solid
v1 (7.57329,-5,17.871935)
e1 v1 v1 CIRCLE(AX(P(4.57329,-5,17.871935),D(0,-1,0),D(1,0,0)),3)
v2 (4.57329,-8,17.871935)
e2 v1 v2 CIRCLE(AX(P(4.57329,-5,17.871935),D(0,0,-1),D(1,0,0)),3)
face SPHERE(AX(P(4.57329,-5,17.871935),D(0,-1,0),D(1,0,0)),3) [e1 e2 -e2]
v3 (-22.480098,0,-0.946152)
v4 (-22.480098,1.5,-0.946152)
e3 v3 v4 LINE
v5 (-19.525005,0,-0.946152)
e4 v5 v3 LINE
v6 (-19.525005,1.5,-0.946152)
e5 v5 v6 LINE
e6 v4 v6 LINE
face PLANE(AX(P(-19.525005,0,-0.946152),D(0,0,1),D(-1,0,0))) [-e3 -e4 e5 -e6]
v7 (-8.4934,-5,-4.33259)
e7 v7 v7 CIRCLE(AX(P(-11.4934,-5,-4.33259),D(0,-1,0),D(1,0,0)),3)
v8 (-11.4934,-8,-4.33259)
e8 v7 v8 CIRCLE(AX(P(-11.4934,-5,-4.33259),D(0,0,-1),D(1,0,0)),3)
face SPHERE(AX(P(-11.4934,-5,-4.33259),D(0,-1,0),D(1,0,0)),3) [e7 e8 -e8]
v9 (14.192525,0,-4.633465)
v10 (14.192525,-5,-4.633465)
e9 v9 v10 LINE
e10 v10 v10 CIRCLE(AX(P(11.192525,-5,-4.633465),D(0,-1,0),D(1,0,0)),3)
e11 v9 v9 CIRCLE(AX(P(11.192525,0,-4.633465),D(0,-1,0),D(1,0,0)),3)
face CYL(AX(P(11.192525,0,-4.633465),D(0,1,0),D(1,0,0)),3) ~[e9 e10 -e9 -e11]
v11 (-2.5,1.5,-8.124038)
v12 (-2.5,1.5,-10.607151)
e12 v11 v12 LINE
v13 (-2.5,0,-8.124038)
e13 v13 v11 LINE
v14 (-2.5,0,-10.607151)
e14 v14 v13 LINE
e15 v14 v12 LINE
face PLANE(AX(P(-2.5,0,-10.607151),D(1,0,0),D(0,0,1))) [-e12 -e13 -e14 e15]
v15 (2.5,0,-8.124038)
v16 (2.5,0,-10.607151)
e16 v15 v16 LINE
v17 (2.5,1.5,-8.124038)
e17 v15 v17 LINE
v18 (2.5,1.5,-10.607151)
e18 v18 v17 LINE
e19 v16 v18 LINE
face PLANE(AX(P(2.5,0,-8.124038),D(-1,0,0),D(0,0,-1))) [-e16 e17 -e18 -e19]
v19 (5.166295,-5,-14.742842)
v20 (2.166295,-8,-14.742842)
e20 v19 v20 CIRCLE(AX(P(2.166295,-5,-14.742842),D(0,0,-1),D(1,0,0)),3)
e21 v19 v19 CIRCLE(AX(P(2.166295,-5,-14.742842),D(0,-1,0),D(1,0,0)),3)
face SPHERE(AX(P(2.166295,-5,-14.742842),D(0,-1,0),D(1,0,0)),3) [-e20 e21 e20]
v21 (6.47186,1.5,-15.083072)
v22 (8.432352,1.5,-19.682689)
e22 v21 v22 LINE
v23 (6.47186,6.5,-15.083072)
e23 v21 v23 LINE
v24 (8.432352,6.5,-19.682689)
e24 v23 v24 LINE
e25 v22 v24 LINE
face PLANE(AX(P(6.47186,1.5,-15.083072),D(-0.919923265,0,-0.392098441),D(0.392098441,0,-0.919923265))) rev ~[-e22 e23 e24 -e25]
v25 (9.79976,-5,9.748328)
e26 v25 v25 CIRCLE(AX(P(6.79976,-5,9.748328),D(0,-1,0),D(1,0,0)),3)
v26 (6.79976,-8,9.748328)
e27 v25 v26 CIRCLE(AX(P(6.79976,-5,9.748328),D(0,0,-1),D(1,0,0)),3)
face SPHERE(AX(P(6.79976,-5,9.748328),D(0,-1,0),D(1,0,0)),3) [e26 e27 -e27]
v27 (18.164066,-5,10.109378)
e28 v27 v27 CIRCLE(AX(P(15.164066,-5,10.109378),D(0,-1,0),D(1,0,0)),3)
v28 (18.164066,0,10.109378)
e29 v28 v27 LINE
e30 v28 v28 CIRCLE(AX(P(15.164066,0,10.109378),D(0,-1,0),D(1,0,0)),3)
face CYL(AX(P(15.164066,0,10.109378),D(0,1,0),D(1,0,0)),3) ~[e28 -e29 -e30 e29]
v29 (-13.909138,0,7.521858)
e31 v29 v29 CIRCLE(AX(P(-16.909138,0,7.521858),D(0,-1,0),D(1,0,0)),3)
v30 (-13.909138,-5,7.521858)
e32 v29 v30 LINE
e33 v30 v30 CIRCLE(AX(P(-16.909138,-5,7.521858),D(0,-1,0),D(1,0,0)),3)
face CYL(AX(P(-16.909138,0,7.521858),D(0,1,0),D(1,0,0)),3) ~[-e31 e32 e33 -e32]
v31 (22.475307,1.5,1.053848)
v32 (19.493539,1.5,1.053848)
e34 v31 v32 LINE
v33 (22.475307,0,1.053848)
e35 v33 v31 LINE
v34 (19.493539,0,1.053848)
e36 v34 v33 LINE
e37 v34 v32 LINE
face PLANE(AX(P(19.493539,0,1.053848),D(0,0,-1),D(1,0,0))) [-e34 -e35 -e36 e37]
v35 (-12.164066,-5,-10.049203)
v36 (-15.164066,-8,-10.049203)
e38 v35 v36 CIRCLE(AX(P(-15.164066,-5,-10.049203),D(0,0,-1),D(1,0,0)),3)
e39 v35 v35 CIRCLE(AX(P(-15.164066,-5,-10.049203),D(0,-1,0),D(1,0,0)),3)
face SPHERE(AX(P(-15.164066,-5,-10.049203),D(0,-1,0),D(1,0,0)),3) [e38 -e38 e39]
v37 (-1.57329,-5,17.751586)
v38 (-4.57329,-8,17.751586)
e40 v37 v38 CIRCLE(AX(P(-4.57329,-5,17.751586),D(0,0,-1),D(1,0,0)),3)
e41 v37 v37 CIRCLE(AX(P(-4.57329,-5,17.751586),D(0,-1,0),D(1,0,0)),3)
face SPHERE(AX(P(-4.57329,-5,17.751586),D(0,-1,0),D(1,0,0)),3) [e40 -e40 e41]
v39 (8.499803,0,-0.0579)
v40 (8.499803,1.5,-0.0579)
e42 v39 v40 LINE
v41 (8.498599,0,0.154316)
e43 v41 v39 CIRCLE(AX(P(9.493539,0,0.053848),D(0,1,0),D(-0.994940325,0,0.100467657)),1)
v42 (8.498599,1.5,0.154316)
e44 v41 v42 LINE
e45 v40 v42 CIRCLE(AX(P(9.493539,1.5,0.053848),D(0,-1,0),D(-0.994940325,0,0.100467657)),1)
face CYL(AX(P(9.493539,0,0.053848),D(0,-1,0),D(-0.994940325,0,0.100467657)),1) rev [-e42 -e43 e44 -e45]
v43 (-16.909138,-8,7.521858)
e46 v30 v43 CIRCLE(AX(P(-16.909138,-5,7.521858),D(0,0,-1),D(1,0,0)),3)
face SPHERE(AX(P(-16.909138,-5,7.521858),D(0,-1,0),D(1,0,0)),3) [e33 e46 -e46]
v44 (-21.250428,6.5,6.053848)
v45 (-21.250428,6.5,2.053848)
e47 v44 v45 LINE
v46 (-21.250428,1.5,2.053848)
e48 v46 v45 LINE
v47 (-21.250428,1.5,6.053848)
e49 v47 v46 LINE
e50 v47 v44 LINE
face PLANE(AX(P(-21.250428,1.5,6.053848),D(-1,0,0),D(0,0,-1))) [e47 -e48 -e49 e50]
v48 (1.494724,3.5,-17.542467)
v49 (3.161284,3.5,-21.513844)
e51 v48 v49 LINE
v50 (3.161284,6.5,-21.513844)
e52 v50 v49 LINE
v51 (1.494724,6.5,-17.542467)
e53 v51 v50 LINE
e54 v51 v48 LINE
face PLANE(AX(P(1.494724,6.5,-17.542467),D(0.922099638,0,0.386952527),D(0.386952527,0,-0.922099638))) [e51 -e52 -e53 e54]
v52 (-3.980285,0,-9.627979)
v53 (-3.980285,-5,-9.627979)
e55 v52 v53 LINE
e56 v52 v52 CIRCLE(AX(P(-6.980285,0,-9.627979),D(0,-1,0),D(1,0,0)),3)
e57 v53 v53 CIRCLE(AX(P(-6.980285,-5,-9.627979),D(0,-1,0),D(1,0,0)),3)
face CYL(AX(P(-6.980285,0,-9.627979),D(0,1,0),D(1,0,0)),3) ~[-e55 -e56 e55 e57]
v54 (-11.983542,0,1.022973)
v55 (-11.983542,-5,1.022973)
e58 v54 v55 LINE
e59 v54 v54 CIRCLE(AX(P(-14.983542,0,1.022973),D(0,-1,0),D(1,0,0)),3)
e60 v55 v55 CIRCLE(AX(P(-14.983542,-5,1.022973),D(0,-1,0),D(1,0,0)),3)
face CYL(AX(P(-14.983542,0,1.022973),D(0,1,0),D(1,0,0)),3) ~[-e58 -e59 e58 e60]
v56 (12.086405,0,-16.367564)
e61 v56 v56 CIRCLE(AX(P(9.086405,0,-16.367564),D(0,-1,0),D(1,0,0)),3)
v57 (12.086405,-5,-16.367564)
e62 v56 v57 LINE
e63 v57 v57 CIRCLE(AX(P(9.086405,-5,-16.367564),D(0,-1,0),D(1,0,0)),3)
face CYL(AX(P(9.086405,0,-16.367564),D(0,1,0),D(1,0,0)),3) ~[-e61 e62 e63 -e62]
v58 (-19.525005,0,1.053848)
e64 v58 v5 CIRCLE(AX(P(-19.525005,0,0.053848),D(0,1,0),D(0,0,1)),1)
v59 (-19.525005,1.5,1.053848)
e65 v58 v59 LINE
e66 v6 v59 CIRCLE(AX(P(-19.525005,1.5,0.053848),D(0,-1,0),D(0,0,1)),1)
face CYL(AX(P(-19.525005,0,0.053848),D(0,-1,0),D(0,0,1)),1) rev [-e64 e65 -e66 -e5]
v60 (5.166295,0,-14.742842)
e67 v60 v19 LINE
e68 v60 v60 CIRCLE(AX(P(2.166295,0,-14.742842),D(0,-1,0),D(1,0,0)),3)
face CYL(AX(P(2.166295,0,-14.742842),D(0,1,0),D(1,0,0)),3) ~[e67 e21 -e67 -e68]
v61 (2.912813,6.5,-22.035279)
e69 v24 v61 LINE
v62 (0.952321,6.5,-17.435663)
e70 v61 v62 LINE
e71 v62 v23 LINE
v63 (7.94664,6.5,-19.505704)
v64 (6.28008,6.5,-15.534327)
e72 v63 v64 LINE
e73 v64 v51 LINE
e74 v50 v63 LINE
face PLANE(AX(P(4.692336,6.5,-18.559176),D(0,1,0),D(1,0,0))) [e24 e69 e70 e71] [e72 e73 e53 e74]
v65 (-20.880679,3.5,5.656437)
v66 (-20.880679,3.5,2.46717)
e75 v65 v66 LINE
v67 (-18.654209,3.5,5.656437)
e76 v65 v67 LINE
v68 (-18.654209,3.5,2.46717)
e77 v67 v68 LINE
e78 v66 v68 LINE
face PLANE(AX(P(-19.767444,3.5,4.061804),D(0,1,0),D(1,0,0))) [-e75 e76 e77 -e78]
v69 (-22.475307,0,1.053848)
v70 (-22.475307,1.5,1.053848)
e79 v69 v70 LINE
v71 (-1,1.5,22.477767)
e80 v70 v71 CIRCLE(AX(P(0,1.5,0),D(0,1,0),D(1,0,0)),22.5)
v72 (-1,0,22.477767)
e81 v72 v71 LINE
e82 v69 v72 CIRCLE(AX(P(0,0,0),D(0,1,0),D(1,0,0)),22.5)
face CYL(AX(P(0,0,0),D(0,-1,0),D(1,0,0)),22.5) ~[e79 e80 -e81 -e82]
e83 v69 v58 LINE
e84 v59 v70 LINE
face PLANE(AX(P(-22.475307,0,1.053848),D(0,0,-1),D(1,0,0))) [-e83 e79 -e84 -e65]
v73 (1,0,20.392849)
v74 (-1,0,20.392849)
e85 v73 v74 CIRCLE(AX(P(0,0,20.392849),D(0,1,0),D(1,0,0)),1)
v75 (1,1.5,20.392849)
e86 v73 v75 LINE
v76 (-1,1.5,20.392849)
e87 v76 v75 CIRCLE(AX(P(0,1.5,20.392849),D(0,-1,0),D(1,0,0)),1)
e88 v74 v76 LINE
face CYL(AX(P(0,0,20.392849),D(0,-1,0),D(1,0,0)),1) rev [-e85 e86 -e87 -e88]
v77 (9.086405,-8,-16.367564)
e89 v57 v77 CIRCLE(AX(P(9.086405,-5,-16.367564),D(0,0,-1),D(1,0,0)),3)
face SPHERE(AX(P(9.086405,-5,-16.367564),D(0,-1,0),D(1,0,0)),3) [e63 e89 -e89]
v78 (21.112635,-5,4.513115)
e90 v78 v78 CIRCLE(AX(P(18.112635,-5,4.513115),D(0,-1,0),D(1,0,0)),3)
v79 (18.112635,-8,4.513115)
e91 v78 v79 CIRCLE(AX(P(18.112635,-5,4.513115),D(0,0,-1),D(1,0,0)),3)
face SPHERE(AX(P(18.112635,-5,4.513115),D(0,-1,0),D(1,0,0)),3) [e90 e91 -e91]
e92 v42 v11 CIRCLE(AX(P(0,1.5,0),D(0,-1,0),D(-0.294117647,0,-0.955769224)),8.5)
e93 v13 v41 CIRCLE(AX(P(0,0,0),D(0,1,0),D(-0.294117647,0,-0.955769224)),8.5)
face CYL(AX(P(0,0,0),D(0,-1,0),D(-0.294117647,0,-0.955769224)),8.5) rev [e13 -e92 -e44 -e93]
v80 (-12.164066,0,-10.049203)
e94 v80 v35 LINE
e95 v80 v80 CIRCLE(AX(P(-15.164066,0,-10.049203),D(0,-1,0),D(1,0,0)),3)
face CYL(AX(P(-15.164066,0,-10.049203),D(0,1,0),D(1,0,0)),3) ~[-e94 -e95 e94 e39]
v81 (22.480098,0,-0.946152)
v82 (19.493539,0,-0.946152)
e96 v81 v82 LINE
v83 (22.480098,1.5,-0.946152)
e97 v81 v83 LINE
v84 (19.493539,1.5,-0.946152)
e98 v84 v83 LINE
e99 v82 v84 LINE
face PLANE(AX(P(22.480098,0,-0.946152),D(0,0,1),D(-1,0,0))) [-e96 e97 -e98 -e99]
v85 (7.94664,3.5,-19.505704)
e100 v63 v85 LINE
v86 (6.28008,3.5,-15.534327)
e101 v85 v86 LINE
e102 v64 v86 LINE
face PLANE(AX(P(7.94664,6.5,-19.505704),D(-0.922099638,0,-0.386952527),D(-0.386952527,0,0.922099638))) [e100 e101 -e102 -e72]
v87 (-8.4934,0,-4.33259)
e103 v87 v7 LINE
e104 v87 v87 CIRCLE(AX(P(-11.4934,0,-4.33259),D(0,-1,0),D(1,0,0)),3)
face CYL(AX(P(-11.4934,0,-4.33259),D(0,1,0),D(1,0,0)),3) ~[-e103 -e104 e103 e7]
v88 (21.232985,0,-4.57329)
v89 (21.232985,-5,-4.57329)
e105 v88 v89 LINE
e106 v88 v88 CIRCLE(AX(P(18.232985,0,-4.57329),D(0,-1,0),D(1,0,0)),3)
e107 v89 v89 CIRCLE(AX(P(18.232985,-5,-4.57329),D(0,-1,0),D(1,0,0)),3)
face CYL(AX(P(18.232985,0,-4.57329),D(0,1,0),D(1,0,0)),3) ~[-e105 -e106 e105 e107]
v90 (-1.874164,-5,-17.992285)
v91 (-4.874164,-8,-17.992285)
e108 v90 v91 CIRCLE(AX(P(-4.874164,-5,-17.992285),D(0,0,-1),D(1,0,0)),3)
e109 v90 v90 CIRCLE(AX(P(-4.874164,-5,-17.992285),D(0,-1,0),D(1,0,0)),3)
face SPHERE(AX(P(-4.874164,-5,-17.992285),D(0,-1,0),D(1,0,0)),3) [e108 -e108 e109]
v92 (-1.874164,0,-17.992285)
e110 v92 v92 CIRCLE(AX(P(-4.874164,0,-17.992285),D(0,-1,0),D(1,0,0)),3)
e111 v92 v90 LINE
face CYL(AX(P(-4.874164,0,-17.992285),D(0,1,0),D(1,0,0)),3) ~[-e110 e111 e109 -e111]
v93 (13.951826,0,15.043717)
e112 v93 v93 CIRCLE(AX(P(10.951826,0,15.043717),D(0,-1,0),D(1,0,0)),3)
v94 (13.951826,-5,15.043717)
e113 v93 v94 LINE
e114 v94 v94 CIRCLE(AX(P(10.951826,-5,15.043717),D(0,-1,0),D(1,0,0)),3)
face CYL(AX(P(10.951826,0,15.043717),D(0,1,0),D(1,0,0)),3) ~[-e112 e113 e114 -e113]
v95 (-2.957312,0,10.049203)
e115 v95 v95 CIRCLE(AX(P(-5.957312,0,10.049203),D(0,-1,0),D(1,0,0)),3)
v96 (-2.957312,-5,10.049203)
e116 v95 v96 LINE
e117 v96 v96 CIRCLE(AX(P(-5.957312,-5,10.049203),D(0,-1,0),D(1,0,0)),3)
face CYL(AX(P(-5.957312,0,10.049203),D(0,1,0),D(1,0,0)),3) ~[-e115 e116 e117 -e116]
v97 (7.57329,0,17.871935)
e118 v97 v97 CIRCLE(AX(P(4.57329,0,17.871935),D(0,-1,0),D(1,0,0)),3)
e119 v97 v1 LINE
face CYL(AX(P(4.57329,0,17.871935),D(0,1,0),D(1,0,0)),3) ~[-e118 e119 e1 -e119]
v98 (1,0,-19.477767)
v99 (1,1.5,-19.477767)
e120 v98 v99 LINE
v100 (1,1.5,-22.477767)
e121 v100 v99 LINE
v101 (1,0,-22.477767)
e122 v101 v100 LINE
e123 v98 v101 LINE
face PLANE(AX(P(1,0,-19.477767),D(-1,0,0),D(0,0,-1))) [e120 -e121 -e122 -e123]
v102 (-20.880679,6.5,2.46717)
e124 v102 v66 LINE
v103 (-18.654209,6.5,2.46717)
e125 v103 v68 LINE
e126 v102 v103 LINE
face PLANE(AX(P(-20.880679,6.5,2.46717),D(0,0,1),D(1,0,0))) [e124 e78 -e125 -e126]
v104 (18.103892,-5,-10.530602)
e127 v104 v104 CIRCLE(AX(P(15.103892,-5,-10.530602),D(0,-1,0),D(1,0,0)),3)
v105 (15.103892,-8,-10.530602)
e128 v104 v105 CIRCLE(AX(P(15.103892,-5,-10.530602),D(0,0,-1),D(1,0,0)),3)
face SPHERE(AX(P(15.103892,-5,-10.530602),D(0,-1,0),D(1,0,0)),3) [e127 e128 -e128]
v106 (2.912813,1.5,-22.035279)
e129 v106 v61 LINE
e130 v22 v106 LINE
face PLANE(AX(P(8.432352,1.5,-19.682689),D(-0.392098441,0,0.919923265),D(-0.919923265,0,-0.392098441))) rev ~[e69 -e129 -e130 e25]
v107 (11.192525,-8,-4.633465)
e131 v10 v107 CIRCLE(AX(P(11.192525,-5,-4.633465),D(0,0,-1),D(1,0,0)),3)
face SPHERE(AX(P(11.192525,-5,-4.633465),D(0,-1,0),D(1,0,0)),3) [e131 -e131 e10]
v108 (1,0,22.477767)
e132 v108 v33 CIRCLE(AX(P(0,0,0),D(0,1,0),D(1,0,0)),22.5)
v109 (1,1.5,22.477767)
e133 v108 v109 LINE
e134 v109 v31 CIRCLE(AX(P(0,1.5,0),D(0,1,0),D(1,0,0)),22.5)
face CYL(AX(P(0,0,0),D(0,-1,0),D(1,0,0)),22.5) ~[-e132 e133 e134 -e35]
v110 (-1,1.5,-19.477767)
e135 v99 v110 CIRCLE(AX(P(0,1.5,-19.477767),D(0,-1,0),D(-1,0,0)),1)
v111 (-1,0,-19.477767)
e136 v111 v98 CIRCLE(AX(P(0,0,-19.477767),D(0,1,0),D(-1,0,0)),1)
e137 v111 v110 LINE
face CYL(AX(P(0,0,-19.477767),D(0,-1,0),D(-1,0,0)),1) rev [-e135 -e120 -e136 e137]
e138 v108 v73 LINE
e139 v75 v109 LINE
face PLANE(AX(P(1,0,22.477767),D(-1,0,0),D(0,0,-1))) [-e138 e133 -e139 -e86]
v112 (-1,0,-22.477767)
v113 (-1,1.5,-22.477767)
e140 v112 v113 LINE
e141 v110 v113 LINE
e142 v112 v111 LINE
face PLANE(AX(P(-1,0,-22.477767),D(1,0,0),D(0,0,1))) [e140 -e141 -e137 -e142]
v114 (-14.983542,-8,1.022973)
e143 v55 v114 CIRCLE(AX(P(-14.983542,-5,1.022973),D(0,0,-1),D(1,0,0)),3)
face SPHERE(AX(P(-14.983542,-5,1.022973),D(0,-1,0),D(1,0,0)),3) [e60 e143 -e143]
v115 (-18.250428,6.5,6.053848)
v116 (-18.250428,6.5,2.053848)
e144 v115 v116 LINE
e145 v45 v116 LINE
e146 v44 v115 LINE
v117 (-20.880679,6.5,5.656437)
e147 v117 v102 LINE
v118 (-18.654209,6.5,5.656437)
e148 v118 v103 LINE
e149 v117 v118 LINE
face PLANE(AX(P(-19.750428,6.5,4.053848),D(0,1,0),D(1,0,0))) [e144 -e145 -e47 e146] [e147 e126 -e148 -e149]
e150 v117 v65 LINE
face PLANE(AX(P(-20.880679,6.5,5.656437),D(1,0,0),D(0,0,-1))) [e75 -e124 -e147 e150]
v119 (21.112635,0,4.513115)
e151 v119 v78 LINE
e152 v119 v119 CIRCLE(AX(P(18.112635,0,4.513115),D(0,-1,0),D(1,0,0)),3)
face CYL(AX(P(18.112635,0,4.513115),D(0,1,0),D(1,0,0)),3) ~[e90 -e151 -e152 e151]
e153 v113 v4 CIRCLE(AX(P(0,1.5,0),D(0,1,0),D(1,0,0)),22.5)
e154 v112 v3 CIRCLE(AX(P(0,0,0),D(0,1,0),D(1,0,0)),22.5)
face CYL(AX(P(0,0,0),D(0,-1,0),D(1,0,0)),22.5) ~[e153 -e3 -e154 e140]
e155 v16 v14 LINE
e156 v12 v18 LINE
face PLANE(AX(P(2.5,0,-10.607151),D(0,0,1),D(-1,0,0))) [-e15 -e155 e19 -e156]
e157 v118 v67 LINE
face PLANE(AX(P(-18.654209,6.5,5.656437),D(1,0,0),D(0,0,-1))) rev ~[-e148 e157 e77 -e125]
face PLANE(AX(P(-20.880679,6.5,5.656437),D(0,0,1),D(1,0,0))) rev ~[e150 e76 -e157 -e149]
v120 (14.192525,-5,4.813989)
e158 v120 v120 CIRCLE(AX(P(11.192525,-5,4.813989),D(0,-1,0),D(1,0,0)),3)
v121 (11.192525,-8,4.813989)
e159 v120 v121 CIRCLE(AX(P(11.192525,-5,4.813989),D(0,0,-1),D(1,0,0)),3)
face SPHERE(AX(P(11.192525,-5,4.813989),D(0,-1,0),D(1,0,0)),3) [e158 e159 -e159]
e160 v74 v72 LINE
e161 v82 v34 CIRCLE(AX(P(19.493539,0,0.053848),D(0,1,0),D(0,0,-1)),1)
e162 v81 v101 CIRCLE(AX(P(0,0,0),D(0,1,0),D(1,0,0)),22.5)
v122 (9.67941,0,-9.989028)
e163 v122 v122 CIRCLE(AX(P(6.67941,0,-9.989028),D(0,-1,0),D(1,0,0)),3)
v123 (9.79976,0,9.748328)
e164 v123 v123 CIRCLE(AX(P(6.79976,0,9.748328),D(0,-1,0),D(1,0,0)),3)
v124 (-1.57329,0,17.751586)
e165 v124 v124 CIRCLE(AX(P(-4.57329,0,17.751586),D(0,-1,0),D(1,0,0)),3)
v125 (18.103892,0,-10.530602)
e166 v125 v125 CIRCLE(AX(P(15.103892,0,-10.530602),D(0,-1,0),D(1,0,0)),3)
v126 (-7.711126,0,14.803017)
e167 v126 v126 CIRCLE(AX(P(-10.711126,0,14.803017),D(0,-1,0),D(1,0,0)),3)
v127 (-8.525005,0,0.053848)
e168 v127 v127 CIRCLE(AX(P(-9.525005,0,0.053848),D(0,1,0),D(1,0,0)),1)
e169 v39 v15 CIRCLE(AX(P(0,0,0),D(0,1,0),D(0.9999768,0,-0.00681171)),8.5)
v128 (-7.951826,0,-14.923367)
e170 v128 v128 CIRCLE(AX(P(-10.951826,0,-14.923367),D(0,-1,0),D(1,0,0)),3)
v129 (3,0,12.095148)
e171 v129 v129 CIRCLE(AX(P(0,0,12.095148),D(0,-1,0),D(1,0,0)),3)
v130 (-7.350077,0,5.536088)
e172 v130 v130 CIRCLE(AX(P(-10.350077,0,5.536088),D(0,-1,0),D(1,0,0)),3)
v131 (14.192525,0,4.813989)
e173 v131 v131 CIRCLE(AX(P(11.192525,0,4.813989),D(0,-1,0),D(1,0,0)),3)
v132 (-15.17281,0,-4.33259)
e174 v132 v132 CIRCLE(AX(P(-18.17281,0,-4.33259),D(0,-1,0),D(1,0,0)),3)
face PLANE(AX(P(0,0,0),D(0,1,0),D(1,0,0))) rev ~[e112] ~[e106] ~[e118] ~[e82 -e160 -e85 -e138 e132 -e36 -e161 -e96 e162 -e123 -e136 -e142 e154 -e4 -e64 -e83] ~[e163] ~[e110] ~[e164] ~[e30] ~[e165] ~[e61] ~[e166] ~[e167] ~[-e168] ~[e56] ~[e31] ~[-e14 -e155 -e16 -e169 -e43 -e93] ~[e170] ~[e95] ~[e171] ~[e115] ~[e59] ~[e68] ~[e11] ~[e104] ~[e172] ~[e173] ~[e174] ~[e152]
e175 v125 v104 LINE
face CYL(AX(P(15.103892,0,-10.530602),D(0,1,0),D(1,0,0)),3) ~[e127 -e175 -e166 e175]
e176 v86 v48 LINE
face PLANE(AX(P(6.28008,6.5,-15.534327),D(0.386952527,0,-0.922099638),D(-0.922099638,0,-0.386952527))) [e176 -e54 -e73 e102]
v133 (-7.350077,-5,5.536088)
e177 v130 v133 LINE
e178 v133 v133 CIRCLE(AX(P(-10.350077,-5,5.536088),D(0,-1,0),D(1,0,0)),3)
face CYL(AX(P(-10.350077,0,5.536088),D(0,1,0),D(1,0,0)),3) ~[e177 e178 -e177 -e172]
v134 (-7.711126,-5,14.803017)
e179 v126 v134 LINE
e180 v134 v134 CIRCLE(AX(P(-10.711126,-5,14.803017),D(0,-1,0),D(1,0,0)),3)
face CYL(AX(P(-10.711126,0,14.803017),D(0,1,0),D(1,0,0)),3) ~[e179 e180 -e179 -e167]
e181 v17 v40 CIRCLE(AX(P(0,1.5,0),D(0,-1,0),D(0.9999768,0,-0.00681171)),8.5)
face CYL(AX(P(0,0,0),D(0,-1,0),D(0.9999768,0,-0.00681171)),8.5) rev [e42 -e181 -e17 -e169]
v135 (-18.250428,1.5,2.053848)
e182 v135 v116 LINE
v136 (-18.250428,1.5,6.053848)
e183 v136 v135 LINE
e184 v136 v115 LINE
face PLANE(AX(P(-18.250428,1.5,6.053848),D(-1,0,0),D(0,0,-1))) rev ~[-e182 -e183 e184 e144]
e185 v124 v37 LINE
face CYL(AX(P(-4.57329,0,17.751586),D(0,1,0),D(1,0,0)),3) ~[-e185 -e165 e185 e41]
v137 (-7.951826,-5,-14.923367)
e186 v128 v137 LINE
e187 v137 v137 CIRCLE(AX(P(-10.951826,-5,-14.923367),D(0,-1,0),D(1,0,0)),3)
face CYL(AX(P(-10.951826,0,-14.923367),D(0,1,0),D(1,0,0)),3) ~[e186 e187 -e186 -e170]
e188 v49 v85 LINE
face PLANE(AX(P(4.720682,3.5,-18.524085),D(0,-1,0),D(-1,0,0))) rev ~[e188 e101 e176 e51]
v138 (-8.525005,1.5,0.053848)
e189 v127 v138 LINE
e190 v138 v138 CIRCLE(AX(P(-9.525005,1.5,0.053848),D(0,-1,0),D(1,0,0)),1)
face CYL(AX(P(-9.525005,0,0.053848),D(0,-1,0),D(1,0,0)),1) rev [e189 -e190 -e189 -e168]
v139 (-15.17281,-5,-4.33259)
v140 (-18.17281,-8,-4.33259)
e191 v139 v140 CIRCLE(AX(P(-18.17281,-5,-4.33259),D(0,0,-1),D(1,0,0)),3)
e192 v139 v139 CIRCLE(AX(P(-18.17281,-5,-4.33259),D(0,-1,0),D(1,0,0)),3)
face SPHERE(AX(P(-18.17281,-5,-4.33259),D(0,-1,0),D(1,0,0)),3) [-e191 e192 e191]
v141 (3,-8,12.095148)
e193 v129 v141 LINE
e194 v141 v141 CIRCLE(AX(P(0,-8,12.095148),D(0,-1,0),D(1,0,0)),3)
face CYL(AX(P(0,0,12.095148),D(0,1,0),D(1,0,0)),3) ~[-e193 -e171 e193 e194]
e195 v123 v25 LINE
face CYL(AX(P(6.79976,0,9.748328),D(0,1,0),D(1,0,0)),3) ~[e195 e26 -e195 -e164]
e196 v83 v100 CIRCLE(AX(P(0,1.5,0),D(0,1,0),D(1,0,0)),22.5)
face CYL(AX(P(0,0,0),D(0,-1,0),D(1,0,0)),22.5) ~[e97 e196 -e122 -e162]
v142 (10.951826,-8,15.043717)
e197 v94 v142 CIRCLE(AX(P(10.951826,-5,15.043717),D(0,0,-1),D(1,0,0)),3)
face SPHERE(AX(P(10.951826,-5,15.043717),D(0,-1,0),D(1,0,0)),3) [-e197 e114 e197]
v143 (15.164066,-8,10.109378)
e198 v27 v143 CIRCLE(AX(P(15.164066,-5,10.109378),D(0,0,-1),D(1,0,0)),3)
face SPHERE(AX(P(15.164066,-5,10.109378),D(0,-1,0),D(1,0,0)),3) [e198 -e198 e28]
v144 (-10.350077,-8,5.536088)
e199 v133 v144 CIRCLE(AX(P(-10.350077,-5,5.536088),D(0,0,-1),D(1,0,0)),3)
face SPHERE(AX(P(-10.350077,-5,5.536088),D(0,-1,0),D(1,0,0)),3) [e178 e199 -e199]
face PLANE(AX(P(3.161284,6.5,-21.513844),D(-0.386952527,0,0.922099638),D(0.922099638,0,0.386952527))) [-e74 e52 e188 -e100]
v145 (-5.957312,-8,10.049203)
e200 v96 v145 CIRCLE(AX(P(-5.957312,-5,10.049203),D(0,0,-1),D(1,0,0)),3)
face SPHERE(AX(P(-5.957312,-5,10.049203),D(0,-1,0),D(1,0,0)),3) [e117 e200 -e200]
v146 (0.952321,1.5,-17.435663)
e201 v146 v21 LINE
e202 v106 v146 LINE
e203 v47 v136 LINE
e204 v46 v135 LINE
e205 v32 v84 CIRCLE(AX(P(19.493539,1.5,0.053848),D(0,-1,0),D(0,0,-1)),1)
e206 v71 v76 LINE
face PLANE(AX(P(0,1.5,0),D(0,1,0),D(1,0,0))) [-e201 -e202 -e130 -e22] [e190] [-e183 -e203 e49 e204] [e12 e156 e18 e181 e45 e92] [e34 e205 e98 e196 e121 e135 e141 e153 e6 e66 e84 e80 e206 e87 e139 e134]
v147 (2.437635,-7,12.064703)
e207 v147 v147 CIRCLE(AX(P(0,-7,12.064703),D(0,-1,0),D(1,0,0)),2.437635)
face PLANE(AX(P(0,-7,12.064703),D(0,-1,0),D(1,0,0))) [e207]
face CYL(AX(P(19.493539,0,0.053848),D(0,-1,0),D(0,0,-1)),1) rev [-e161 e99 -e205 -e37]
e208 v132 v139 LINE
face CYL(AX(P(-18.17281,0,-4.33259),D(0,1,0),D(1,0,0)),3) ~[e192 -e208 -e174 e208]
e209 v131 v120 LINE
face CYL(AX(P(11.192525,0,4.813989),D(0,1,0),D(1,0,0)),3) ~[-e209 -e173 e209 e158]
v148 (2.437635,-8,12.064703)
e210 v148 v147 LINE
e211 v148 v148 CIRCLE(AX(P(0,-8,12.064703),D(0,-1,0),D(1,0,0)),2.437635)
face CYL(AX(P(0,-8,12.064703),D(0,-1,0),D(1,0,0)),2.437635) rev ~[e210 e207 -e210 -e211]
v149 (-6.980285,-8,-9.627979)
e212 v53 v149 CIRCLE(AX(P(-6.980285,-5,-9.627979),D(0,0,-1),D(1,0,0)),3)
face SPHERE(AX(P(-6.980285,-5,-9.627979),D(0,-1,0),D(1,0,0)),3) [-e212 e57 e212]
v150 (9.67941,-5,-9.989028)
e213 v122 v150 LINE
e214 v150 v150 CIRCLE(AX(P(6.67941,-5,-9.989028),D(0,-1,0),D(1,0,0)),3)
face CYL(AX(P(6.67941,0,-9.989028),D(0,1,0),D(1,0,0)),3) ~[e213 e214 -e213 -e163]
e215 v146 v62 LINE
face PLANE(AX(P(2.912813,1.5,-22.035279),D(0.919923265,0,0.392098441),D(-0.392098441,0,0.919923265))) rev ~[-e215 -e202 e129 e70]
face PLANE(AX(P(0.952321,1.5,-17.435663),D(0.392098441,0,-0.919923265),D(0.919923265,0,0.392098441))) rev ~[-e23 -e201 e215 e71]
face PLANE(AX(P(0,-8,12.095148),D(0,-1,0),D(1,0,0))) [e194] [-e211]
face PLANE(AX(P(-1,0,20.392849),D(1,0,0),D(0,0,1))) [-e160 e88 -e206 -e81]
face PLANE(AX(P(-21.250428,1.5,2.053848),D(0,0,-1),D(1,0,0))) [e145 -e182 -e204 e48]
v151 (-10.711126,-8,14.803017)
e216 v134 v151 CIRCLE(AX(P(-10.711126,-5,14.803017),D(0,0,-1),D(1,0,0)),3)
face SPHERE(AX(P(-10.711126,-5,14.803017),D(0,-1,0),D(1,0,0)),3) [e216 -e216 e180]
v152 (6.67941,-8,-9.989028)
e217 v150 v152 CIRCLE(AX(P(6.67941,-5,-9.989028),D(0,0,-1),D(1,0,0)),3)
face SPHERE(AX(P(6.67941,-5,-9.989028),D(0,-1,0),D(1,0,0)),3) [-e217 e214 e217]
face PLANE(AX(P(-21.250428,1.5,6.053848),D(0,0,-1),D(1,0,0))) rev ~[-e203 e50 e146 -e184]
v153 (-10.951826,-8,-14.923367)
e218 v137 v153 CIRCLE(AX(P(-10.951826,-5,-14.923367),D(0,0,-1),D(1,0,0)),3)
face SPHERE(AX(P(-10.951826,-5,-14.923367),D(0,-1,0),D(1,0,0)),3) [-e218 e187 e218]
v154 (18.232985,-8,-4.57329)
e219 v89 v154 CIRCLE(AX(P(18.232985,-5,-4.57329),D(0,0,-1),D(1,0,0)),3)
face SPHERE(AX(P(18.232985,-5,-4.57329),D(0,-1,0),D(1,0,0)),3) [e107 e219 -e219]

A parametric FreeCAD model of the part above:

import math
import FreeCAD as App
import Part
import Sketcher


def edges_at(feature, points):
    """Names of the edges that pass closest to the given points."""
    edges = feature.Shape.Edges
    near = lambda p: min(range(len(edges)), key=lambda i: edges[i].distToShape(Part.Vertex(*p))[0])
    return sorted({f"Edge{near(p) + 1}" for p in points})


def add_polygon(sketch, points):
    """Adds a closed chain of lines whose ends are joined by coincident constraints."""
    first, n = sketch.GeometryCount, len(points)
    for a, b in zip(points, points[1:] + points[:1]):
        sketch.addGeometry(Part.LineSegment(App.Vector(*a, 0), App.Vector(*b, 0)), False)
    for i in range(n):
        sketch.addConstraint(Sketcher.Constraint("Coincident", first + i, 2, first + (i + 1) % n, 1))

doc = App.newDocument("Part")
body = doc.addObject("PartDesign::Body", "Body")

# Sketch on XZ plane
sketch1 = body.newObject("Sketcher::SketchObject", "Sketch")
sketch1.AttachmentSupport = (doc.getObject("XZ_Plane"), [""])
sketch1.MapMode = "FlatFace"
sketch1.addGeometry(Part.Circle(App.Vector(0, 0, 0), App.Vector(0, 0, 1), 22), False)
sketch1.addConstraint(Sketcher.Constraint("Coincident", 0, 3, -1, 1))
sketch1.addConstraint(Sketcher.Constraint("Diameter", 0, 45.0))
pad1 = body.newObject("PartDesign::Pad", "Pad")
pad1.Profile = sketch1
pad1.Length = 1.5
pad1.Reversed = True

# Sketch on XZ plane
sketch2 = body.newObject("Sketcher::SketchObject", "Sketch001")
sketch2.AttachmentSupport = (doc.getObject("XZ_Plane"), [""])
sketch2.MapMode = "FlatFace"
sketch2.addGeometry(Part.LineSegment(App.Vector(-22.48, 1.05, 0), App.Vector(-19.53, 1.05, 0)), False)
sketch2.addGeometry(Part.ArcOfCircle(Part.Circle(App.Vector(-19.53, 0.05, 0), App.Vector(0, 0, 1), 1), math.radians(-90), math.radians(90)), False)
sketch2.addGeometry(Part.LineSegment(App.Vector(-19.53, -0.95, 0), App.Vector(-22.48, -0.95, 0)), False)
sketch2.addGeometry(Part.ArcOfCircle(Part.Circle(App.Vector(0, 0, 0), App.Vector(0, 0, 1), 22.5), math.radians(177.32), math.radians(182.41)), False)
sketch2.addGeometry(Part.LineSegment(App.Vector(-1, 20.39, 0), App.Vector(-1, 22.48, 0)), False)
sketch2.addGeometry(Part.ArcOfCircle(Part.Circle(App.Vector(0, 0, 0), App.Vector(0, 0, 1), 22.5), math.radians(87.45), math.radians(92.55)), False)
sketch2.addGeometry(Part.LineSegment(App.Vector(1, 22.48, 0), App.Vector(1, 20.39, 0)), False)
sketch2.addGeometry(Part.ArcOfCircle(Part.Circle(App.Vector(0, 20.39, 0), App.Vector(0, 0, 1), 1), math.radians(180), math.radians(360)), False)
sketch2.addGeometry(Part.ArcOfCircle(Part.Circle(App.Vector(0, 0, 0), App.Vector(0, 0, 1), 22.5), math.radians(-92.55), math.radians(-87.45)), False)
sketch2.addGeometry(Part.LineSegment(App.Vector(-1, -22.48, 0), App.Vector(-1, -19.48, 0)), False)
sketch2.addGeometry(Part.ArcOfCircle(Part.Circle(App.Vector(0, -19.48, 0), App.Vector(0, 0, 1), 1), math.radians(0), math.radians(180)), False)
sketch2.addGeometry(Part.LineSegment(App.Vector(1, -19.48, 0), App.Vector(1, -22.48, 0)), False)
sketch2.addGeometry(Part.LineSegment(App.Vector(19.49, 1.05, 0), App.Vector(22.48, 1.05, 0)), False)
sketch2.addGeometry(Part.ArcOfCircle(Part.Circle(App.Vector(0, 0, 0), App.Vector(0, 0, 1), 22.5), math.radians(-2.41), math.radians(2.68)), False)
sketch2.addGeometry(Part.LineSegment(App.Vector(22.48, -0.95, 0), App.Vector(19.49, -0.95, 0)), False)
sketch2.addGeometry(Part.ArcOfCircle(Part.Circle(App.Vector(19.49, 0.05, 0), App.Vector(0, 0, 1), 1), math.radians(90), math.radians(270)), False)
sketch2.addGeometry(Part.LineSegment(App.Vector(2.5, -10.61, 0), App.Vector(-2.5, -10.61, 0)), False)
sketch2.addGeometry(Part.LineSegment(App.Vector(-2.5, -10.61, 0), App.Vector(-2.5, -8.12, 0)), False)
sketch2.addGeometry(Part.ArcOfCircle(Part.Circle(App.Vector(0, 0, 0), App.Vector(0, 0, 1), 8.5), math.radians(1), math.radians(253)), False)
sketch2.addGeometry(Part.ArcOfCircle(Part.Circle(App.Vector(9.49, 0.05, 0), App.Vector(0, 0, 1), 1), math.radians(-174), math.radians(174)), False)
sketch2.addGeometry(Part.ArcOfCircle(Part.Circle(App.Vector(0, 0, 0), App.Vector(0, 0, 1), 8.5), math.radians(-73), math.radians(0)), False)
sketch2.addGeometry(Part.LineSegment(App.Vector(2.5, -8.12, 0), App.Vector(2.5, -10.61, 0)), False)
sketch2.addGeometry(Part.Circle(App.Vector(-9.53, 0.05, 0), App.Vector(0, 0, 1), 1), False)
sketch2.addConstraint(Sketcher.Constraint("Tangent", 0, 2, 1, 2))
sketch2.addConstraint(Sketcher.Constraint("Tangent", 1, 1, 2, 1))
sketch2.addConstraint(Sketcher.Constraint("Coincident", 2, 2, 3, 2))
sketch2.addConstraint(Sketcher.Constraint("Coincident", 3, 1, 0, 1))
sketch2.addConstraint(Sketcher.Constraint("Coincident", 4, 2, 5, 2))
sketch2.addConstraint(Sketcher.Constraint("Coincident", 5, 1, 6, 1))
sketch2.addConstraint(Sketcher.Constraint("Tangent", 6, 2, 7, 2))
sketch2.addConstraint(Sketcher.Constraint("Tangent", 7, 1, 4, 1))
sketch2.addConstraint(Sketcher.Constraint("Coincident", 8, 1, 9, 1))
sketch2.addConstraint(Sketcher.Constraint("Tangent", 9, 2, 10, 2))
sketch2.addConstraint(Sketcher.Constraint("Tangent", 10, 1, 11, 1))
sketch2.addConstraint(Sketcher.Constraint("Coincident", 11, 2, 8, 2))
sketch2.addConstraint(Sketcher.Constraint("Coincident", 12, 2, 13, 2))
sketch2.addConstraint(Sketcher.Constraint("Coincident", 13, 1, 14, 1))
sketch2.addConstraint(Sketcher.Constraint("Tangent", 14, 2, 15, 2))
sketch2.addConstraint(Sketcher.Constraint("Tangent", 15, 1, 12, 1))
sketch2.addConstraint(Sketcher.Constraint("Coincident", 16, 2, 17, 1))
sketch2.addConstraint(Sketcher.Constraint("Coincident", 17, 2, 18, 2))
sketch2.addConstraint(Sketcher.Constraint("Coincident", 18, 1, 19, 2))
sketch2.addConstraint(Sketcher.Constraint("Coincident", 19, 1, 20, 2))
sketch2.addConstraint(Sketcher.Constraint("Coincident", 20, 1, 21, 1))
sketch2.addConstraint(Sketcher.Constraint("Coincident", 21, 2, 16, 1))
sketch2.addConstraint(Sketcher.Constraint("Horizontal", 0))
sketch2.addConstraint(Sketcher.Constraint("Horizontal", 2))
sketch2.addConstraint(Sketcher.Constraint("Vertical", 4))
sketch2.addConstraint(Sketcher.Constraint("Vertical", 6))
sketch2.addConstraint(Sketcher.Constraint("Vertical", 9))
sketch2.addConstraint(Sketcher.Constraint("Vertical", 11))
sketch2.addConstraint(Sketcher.Constraint("Horizontal", 12))
sketch2.addConstraint(Sketcher.Constraint("Horizontal", 14))
sketch2.addConstraint(Sketcher.Constraint("Horizontal", 16))
sketch2.addConstraint(Sketcher.Constraint("Vertical", 17))
sketch2.addConstraint(Sketcher.Constraint("Vertical", 21))
sketch2.addConstraint(Sketcher.Constraint("Coincident", 3, 3, -1, 1))
sketch2.addConstraint(Sketcher.Constraint("Coincident", 5, 3, -1, 1))
sketch2.addConstraint(Sketcher.Constraint("Coincident", 8, 3, -1, 1))
sketch2.addConstraint(Sketcher.Constraint("Coincident", 13, 3, -1, 1))
sketch2.addConstraint(Sketcher.Constraint("Coincident", 18, 3, -1, 1))
sketch2.addConstraint(Sketcher.Constraint("Coincident", 20, 3, -1, 1))
sketch2.addConstraint(Sketcher.Constraint("Equal", 3, 5))
sketch2.addConstraint(Sketcher.Constraint("Equal", 1, 7))
sketch2.addConstraint(Sketcher.Constraint("Equal", 5, 8))
sketch2.addConstraint(Sketcher.Constraint("Equal", 7, 10))
sketch2.addConstraint(Sketcher.Constraint("Equal", 8, 13))
sketch2.addConstraint(Sketcher.Constraint("Equal", 10, 15))
sketch2.addConstraint(Sketcher.Constraint("Equal", 15, 19))
sketch2.addConstraint(Sketcher.Constraint("Equal", 18, 20))
sketch2.addConstraint(Sketcher.Constraint("Equal", 19, 22))
sketch2.addConstraint(Sketcher.Constraint("PointOnObject", 7, 3, -2))
sketch2.addConstraint(Sketcher.Constraint("PointOnObject", 10, 3, -2))
sketch2.addConstraint(Sketcher.Constraint("Horizontal", 1, 3, 15, 3))
sketch2.addConstraint(Sketcher.Constraint("Horizontal", 15, 3, 19, 3))
sketch2.addConstraint(Sketcher.Constraint("Horizontal", 19, 3, 22, 3))
sketch2.addConstraint(Sketcher.Constraint("Horizontal", 17, 2, 20, 1))
sketch2.addConstraint(Sketcher.Constraint("Diameter", 22, 2.0))
sketch2.addConstraint(Sketcher.Constraint("Radius", 3, 22.499999))
sketch2.addConstraint(Sketcher.Constraint("Radius", 18, 8.5))
sketch2.addConstraint(Sketcher.Constraint("DistanceX", 16, 2, 16, 1, 5.0))
sketch2.addConstraint(Sketcher.Constraint("DistanceY", 9, 1, 9, 2, 3.0))
sketch2.addConstraint(Sketcher.Constraint("DistanceX", 0, 2, 22, 3, 10.0))
sketch2.addConstraint(Sketcher.Constraint("DistanceX", 19, 3, 14, 2, 10.0))
sketch2.addConstraint(Sketcher.Constraint("DistanceX", 0, 1, 0, 2, 2.950301))
sketch2.addConstraint(Sketcher.Constraint("DistanceY", 1, 3, 7, 3, 20.339001))
sketch2.addConstraint(Sketcher.Constraint("DistanceX", 14, 2, 14, 1, 2.986558))
sketch2.addConstraint(Sketcher.Constraint("DistanceY", 19, 1, -1, 1, 0.0579))
sketch2.addConstraint(Sketcher.Constraint("DistanceY", 17, 1, 17, 2, 2.483112))
pocket1 = body.newObject("PartDesign::Pocket", "Pocket")
pocket1.Profile = sketch2
pocket1.Length = 10

# Sketch on XZ plane
sketch3 = body.newObject("Sketcher::SketchObject", "Sketch002")
sketch3.AttachmentSupport = (doc.getObject("XZ_Plane"), [""])
sketch3.MapMode = "FlatFace"
sketch3.AttachmentOffset = App.Placement(App.Vector(0, 0, -1.5), App.Rotation())
add_polygon(sketch3, [(2.9, -22), (1, -17.4), (6.5, -15.1), (8.4, -19.7)])  # lines 0-3
add_polygon(sketch3, [(-21.3, 2.1), (-21.3, 6.1), (-18.3, 6.1), (-18.3, 2.1)])  # lines 4-7
sketch3.addConstraint(Sketcher.Constraint("Vertical", 4))
sketch3.addConstraint(Sketcher.Constraint("Horizontal", 5))
sketch3.addConstraint(Sketcher.Constraint("Vertical", 6))
sketch3.addConstraint(Sketcher.Constraint("Horizontal", 7))
sketch3.addConstraint(Sketcher.Constraint("Perpendicular", 0, 1))
sketch3.addConstraint(Sketcher.Constraint("Perpendicular", 1, 2))
sketch3.addConstraint(Sketcher.Constraint("Perpendicular", 2, 3))
sketch3.addConstraint(Sketcher.Constraint("DistanceX", 5, 1, 5, 2, 3.0))
sketch3.addConstraint(Sketcher.Constraint("DistanceY", 4, 1, 4, 2, 4.0))
sketch3.addConstraint(Sketcher.Constraint("Distance", 0, 5.0))
sketch3.addConstraint(Sketcher.Constraint("Distance", 1, 6.0))
sketch3.addConstraint(Sketcher.Constraint("DistanceX", -1, 1, 0, 2, 0.952321))
sketch3.addConstraint(Sketcher.Constraint("DistanceX", -1, 1, 1, 2, 6.47186))
sketch3.addConstraint(Sketcher.Constraint("DistanceY", 2, 2, -1, 1, 19.682689))
sketch3.addConstraint(Sketcher.Constraint("DistanceY", -1, 1, 4, 2, 6.053848))
sketch3.addConstraint(Sketcher.Constraint("DistanceX", 4, 2, 0, 2, 22.202748))
pad2 = body.newObject("PartDesign::Pad", "Pad001")
pad2.Profile = sketch3
pad2.Length = 5
pad2.Reversed = True

# Sketch on XZ plane
sketch4 = body.newObject("Sketcher::SketchObject", "Sketch003")
sketch4.AttachmentSupport = (doc.getObject("XZ_Plane"), [""])
sketch4.MapMode = "FlatFace"
sketch4.addGeometry(Part.Circle(App.Vector(0, 12.1, 0), App.Vector(0, 0, 1), 3), False)
sketch4.addGeometry(Part.Circle(App.Vector(-4.6, 17.8, 0), App.Vector(0, 0, 1), 3), False)
sketch4.addGeometry(Part.Circle(App.Vector(4.6, 17.9, 0), App.Vector(0, 0, 1), 3), False)
sketch4.addGeometry(Part.Circle(App.Vector(11, 15, 0), App.Vector(0, 0, 1), 3), False)
sketch4.addGeometry(Part.Circle(App.Vector(6.8, 9.7, 0), App.Vector(0, 0, 1), 3), False)
sketch4.addGeometry(Part.Circle(App.Vector(18.1, 4.5, 0), App.Vector(0, 0, 1), 3), False)
sketch4.addGeometry(Part.Circle(App.Vector(15.2, 10.1, 0), App.Vector(0, 0, 1), 3), False)
sketch4.addGeometry(Part.Circle(App.Vector(11.2, 4.8, 0), App.Vector(0, 0, 1), 3), False)
sketch4.addGeometry(Part.Circle(App.Vector(18.2, -4.6, 0), App.Vector(0, 0, 1), 3), False)
sketch4.addGeometry(Part.Circle(App.Vector(11.2, -4.6, 0), App.Vector(0, 0, 1), 3), False)
sketch4.addGeometry(Part.Circle(App.Vector(15.1, -10.5, 0), App.Vector(0, 0, 1), 3), False)
sketch4.addGeometry(Part.Circle(App.Vector(6.7, -10, 0), App.Vector(0, 0, 1), 3), False)
sketch4.addGeometry(Part.Circle(App.Vector(9.1, -16.4, 0), App.Vector(0, 0, 1), 3), False)
sketch4.addGeometry(Part.Circle(App.Vector(2.2, -14.7, 0), App.Vector(0, 0, 1), 3), False)
sketch4.addGeometry(Part.Circle(App.Vector(-4.9, -18, 0), App.Vector(0, 0, 1), 3), False)
sketch4.addGeometry(Part.Circle(App.Vector(-11, -14.9, 0), App.Vector(0, 0, 1), 3), False)
sketch4.addGeometry(Part.Circle(App.Vector(-7, -9.6, 0), App.Vector(0, 0, 1), 3), False)
sketch4.addGeometry(Part.Circle(App.Vector(-11.5, -4.3, 0), App.Vector(0, 0, 1), 3), False)
sketch4.addGeometry(Part.Circle(App.Vector(-18.2, -4.3, 0), App.Vector(0, 0, 1), 3), False)
sketch4.addGeometry(Part.Circle(App.Vector(-15.2, -10, 0), App.Vector(0, 0, 1), 3), False)
sketch4.addGeometry(Part.Circle(App.Vector(-15, 1, 0), App.Vector(0, 0, 1), 3), False)
sketch4.addGeometry(Part.Circle(App.Vector(-10.4, 5.5, 0), App.Vector(0, 0, 1), 3), False)
sketch4.addGeometry(Part.Circle(App.Vector(-16.9, 7.5, 0), App.Vector(0, 0, 1), 3), False)
sketch4.addGeometry(Part.Circle(App.Vector(-6, 10, 0), App.Vector(0, 0, 1), 3), False)
sketch4.addGeometry(Part.Circle(App.Vector(-10.7, 14.8, 0), App.Vector(0, 0, 1), 3), False)
sketch4.addConstraint(Sketcher.Constraint("Equal", 0, 1))
sketch4.addConstraint(Sketcher.Constraint("Equal", 1, 2))
sketch4.addConstraint(Sketcher.Constraint("Equal", 2, 3))
sketch4.addConstraint(Sketcher.Constraint("Equal", 3, 4))
sketch4.addConstraint(Sketcher.Constraint("Equal", 4, 5))
sketch4.addConstraint(Sketcher.Constraint("Equal", 5, 6))
sketch4.addConstraint(Sketcher.Constraint("Equal", 6, 7))
sketch4.addConstraint(Sketcher.Constraint("Equal", 7, 8))
sketch4.addConstraint(Sketcher.Constraint("Equal", 8, 9))
sketch4.addConstraint(Sketcher.Constraint("Equal", 9, 10))
sketch4.addConstraint(Sketcher.Constraint("Equal", 10, 11))
sketch4.addConstraint(Sketcher.Constraint("Equal", 11, 12))
sketch4.addConstraint(Sketcher.Constraint("Equal", 12, 13))
sketch4.addConstraint(Sketcher.Constraint("Equal", 13, 14))
sketch4.addConstraint(Sketcher.Constraint("Equal", 14, 15))
sketch4.addConstraint(Sketcher.Constraint("Equal", 15, 16))
sketch4.addConstraint(Sketcher.Constraint("Equal", 16, 17))
sketch4.addConstraint(Sketcher.Constraint("Equal", 17, 18))
sketch4.addConstraint(Sketcher.Constraint("Equal", 18, 19))
sketch4.addConstraint(Sketcher.Constraint("Equal", 19, 20))
sketch4.addConstraint(Sketcher.Constraint("Equal", 20, 21))
sketch4.addConstraint(Sketcher.Constraint("Equal", 21, 22))
sketch4.addConstraint(Sketcher.Constraint("Equal", 22, 23))
sketch4.addConstraint(Sketcher.Constraint("Equal", 23, 24))
sketch4.addConstraint(Sketcher.Constraint("PointOnObject", 0, 3, -2))
sketch4.addConstraint(Sketcher.Constraint("Horizontal", 17, 3, 18, 3))
sketch4.addConstraint(Sketcher.Constraint("Vertical", 7, 3, 9, 3))
sketch4.addConstraint(Sketcher.Constraint("Diameter", 0, 6.0))
sketch4.addConstraint(Sketcher.Constraint("DistanceY", 10, 3, -1, 1, 10.530602))
sketch4.addConstraint(Sketcher.Constraint("DistanceX", 17, 3, -1, 1, 11.4934))
sketch4.addConstraint(Sketcher.Constraint("DistanceY", 5, 3, 3, 3, 10.530602))
sketch4.addConstraint(Sketcher.Constraint("DistanceX", 3, 3, 7, 3, 0.240699))
sketch4.addConstraint(Sketcher.Constraint("DistanceY", 12, 3, 9, 3, 11.734099))
sketch4.addConstraint(Sketcher.Constraint("DistanceY", -1, 1, 0, 3, 12.095148))
sketch4.addConstraint(Sketcher.Constraint("DistanceX", 1, 3, -1, 1, 4.57329))
sketch4.addConstraint(Sketcher.Constraint("DistanceX", -1, 1, 2, 3, 4.57329))
sketch4.addConstraint(Sketcher.Constraint("DistanceX", -1, 1, 4, 3, 6.79976))
sketch4.addConstraint(Sketcher.Constraint("DistanceY", -1, 1, 4, 3, 9.748328))
sketch4.addConstraint(Sketcher.Constraint("DistanceY", -1, 1, 7, 3, 4.813989))
sketch4.addConstraint(Sketcher.Constraint("DistanceY", 8, 3, -1, 1, 4.57329))
sketch4.addConstraint(Sketcher.Constraint("DistanceX", -1, 1, 10, 3, 15.103892))
sketch4.addConstraint(Sketcher.Constraint("DistanceX", -1, 1, 11, 3, 6.67941))
sketch4.addConstraint(Sketcher.Constraint("DistanceY", 16, 3, -1, 1, 9.627979))
sketch4.addConstraint(Sketcher.Constraint("DistanceY", 17, 3, -1, 1, 4.33259))
sketch4.addConstraint(Sketcher.Constraint("DistanceX", 18, 3, -1, 1, 18.17281))
sketch4.addConstraint(Sketcher.Constraint("DistanceX", 20, 3, -1, 1, 14.983542))
sketch4.addConstraint(Sketcher.Constraint("DistanceY", -1, 1, 22, 3, 7.521858))
sketch4.addConstraint(Sketcher.Constraint("DistanceX", 23, 3, -1, 1, 5.957312))
sketch4.addConstraint(Sketcher.Constraint("DistanceY", 1, 3, 2, 3, 0.12035))
sketch4.addConstraint(Sketcher.Constraint("DistanceY", 3, 3, 2, 3, 2.828219))
sketch4.addConstraint(Sketcher.Constraint("DistanceY", 0, 3, 3, 3, 2.948568))
sketch4.addConstraint(Sketcher.Constraint("DistanceX", 3, 3, 5, 3, 7.160809))
sketch4.addConstraint(Sketcher.Constraint("DistanceX", 6, 3, 5, 3, 2.948568))
sketch4.addConstraint(Sketcher.Constraint("DistanceY", 6, 3, 3, 3, 4.934339))
sketch4.addConstraint(Sketcher.Constraint("DistanceX", 5, 3, 8, 3, 0.12035))
sketch4.addConstraint(Sketcher.Constraint("DistanceY", 9, 3, 5, 3, 9.14658))
sketch4.addConstraint(Sketcher.Constraint("DistanceY", 11, 3, 8, 3, 5.415738))
sketch4.addConstraint(Sketcher.Constraint("DistanceX", 12, 3, 9, 3, 2.10612))
sketch4.addConstraint(Sketcher.Constraint("DistanceX", 13, 3, 12, 3, 6.92011))
sketch4.addConstraint(Sketcher.Constraint("DistanceY", 12, 3, 13, 3, 1.624721))
sketch4.addConstraint(Sketcher.Constraint("DistanceX", 14, 3, 13, 3, 7.040459))
sketch4.addConstraint(Sketcher.Constraint("DistanceY", 14, 3, 12, 3, 1.624721))
sketch4.addConstraint(Sketcher.Constraint("DistanceX", 15, 3, 14, 3, 6.077662))
sketch4.addConstraint(Sketcher.Constraint("DistanceY", 14, 3, 15, 3, 3.068918))
sketch4.addConstraint(Sketcher.Constraint("DistanceX", 15, 3, 16, 3, 3.971541))
sketch4.addConstraint(Sketcher.Constraint("DistanceX", 19, 3, 15, 3, 4.212241))
sketch4.addConstraint(Sketcher.Constraint("DistanceY", 16, 3, 20, 3, 10.650951))
sketch4.addConstraint(Sketcher.Constraint("DistanceY", 17, 3, 21, 3, 9.868678))
sketch4.addConstraint(Sketcher.Constraint("DistanceX", 22, 3, 21, 3, 6.55906))
sketch4.addConstraint(Sketcher.Constraint("DistanceX", 22, 3, 17, 3, 5.415738))
sketch4.addConstraint(Sketcher.Constraint("DistanceY", 24, 3, 1, 3, 2.948568))
sketch4.addConstraint(Sketcher.Constraint("DistanceX", 24, 3, 21, 3, 0.361049))
sketch4.addConstraint(Sketcher.Constraint("DistanceX", -1, 1, 3, 3, 10.951826))
sketch4.addConstraint(Sketcher.Constraint("DistanceY", 19, 3, -1, 1, 10.049203))
sketch4.addConstraint(Sketcher.Constraint("DistanceY", -1, 1, 23, 3, 10.049203))
pad3 = body.newObject("PartDesign::Pad", "Pad002")
pad3.Profile = sketch4
pad3.Length = 8
doc.recompute()

fillet = body.newObject("PartDesign::Fillet", "Fillet")
fillet.Base = (pad3, edges_at(pad3, [
    (-7.573, -8, 17.752),
    (1.573, -8, 17.872),
    (7.952, -8, 15.044),
    (3.8, -8, 9.748),
    (15.113, -8, 4.513),
    (12.164, -8, 10.109),
    (8.193, -8, 4.814),
    (15.233, -8, -4.573),
    (8.193, -8, -4.633),
    (12.104, -8, -10.531),
    (3.679, -8, -9.989),
    (6.086, -8, -16.368),
    (-0.834, -8, -14.743),
    (-7.874, -8, -17.992),
    (-13.952, -8, -14.923),
    (-9.98, -8, -9.628),
    (-14.493, -8, -4.333),
    (-21.173, -8, -4.333),
    (-18.164, -8, -10.049),
    (-17.984, -8, 1.023),
    (-13.35, -8, 5.536),
    (-19.909, -8, 7.522),
    (-8.957, -8, 10.049),
    (-13.711, -8, 14.803),
]))
fillet.Radius = 3

# Sketch on XZ plane
sketch5 = body.newObject("Sketcher::SketchObject", "Sketch004")
sketch5.AttachmentSupport = (doc.getObject("XZ_Plane"), [""])
sketch5.MapMode = "FlatFace"
sketch5.AttachmentOffset = App.Placement(App.Vector(0, 0, 8), App.Rotation())
sketch5.addGeometry(Part.Circle(App.Vector(0, 12.1, 0), App.Vector(0, 0, 1), 2.4), False)
sketch5.addConstraint(Sketcher.Constraint("PointOnObject", 0, 3, -2))
sketch5.addConstraint(Sketcher.Constraint("Diameter", 0, 4.87527))
sketch5.addConstraint(Sketcher.Constraint("DistanceY", -1, 1, 0, 3, 12.064703))
pocket2 = body.newObject("PartDesign::Pocket", "Pocket001")
pocket2.Profile = sketch5
pocket2.Length = 1

# Sketch on XZ plane
sketch6 = body.newObject("Sketcher::SketchObject", "Sketch005")
sketch6.AttachmentSupport = (doc.getObject("XZ_Plane"), [""])
sketch6.MapMode = "FlatFace"
sketch6.AttachmentOffset = App.Placement(App.Vector(0, 0, -6.5), App.Rotation())
add_polygon(sketch6, [(3.2, -21.5), (1.5, -17.5), (6.3, -15.5), (7.9, -19.5)])  # lines 0-3
add_polygon(sketch6, [(-20.9, 2.5), (-20.9, 5.7), (-18.7, 5.7), (-18.7, 2.5)])  # lines 4-7
sketch6.addConstraint(Sketcher.Constraint("Vertical", 4))
sketch6.addConstraint(Sketcher.Constraint("Horizontal", 5))
sketch6.addConstraint(Sketcher.Constraint("Vertical", 6))
sketch6.addConstraint(Sketcher.Constraint("Horizontal", 7))
sketch6.addConstraint(Sketcher.Constraint("Perpendicular", 0, 1))
sketch6.addConstraint(Sketcher.Constraint("Perpendicular", 1, 2))
sketch6.addConstraint(Sketcher.Constraint("Perpendicular", 2, 3))
sketch6.addConstraint(Sketcher.Constraint("DistanceX", 5, 1, 5, 2, 2.22647))
sketch6.addConstraint(Sketcher.Constraint("Distance", 1, 5.189629))
sketch6.addConstraint(Sketcher.Constraint("DistanceY", 4, 1, 4, 2, 3.189268))
sketch6.addConstraint(Sketcher.Constraint("DistanceX", -1, 1, 1, 2, 6.28008))
sketch6.addConstraint(Sketcher.Constraint("DistanceX", -1, 1, 2, 2, 7.94664))
sketch6.addConstraint(Sketcher.Constraint("DistanceX", 4, 2, -1, 1, 20.880679))
sketch6.addConstraint(Sketcher.Constraint("DistanceY", -1, 1, 6, 2, 2.46717))
sketch6.addConstraint(Sketcher.Constraint("DistanceY", 0, 2, 1, 2, 2.00814))
sketch6.addConstraint(Sketcher.Constraint("DistanceY", 3, 2, 4, 2, 27.170281))
pocket3 = body.newObject("PartDesign::Pocket", "Pocket002")
pocket3.Profile = sketch6
pocket3.Length = 3
pocket3.Reversed = True

doc.recompute()
